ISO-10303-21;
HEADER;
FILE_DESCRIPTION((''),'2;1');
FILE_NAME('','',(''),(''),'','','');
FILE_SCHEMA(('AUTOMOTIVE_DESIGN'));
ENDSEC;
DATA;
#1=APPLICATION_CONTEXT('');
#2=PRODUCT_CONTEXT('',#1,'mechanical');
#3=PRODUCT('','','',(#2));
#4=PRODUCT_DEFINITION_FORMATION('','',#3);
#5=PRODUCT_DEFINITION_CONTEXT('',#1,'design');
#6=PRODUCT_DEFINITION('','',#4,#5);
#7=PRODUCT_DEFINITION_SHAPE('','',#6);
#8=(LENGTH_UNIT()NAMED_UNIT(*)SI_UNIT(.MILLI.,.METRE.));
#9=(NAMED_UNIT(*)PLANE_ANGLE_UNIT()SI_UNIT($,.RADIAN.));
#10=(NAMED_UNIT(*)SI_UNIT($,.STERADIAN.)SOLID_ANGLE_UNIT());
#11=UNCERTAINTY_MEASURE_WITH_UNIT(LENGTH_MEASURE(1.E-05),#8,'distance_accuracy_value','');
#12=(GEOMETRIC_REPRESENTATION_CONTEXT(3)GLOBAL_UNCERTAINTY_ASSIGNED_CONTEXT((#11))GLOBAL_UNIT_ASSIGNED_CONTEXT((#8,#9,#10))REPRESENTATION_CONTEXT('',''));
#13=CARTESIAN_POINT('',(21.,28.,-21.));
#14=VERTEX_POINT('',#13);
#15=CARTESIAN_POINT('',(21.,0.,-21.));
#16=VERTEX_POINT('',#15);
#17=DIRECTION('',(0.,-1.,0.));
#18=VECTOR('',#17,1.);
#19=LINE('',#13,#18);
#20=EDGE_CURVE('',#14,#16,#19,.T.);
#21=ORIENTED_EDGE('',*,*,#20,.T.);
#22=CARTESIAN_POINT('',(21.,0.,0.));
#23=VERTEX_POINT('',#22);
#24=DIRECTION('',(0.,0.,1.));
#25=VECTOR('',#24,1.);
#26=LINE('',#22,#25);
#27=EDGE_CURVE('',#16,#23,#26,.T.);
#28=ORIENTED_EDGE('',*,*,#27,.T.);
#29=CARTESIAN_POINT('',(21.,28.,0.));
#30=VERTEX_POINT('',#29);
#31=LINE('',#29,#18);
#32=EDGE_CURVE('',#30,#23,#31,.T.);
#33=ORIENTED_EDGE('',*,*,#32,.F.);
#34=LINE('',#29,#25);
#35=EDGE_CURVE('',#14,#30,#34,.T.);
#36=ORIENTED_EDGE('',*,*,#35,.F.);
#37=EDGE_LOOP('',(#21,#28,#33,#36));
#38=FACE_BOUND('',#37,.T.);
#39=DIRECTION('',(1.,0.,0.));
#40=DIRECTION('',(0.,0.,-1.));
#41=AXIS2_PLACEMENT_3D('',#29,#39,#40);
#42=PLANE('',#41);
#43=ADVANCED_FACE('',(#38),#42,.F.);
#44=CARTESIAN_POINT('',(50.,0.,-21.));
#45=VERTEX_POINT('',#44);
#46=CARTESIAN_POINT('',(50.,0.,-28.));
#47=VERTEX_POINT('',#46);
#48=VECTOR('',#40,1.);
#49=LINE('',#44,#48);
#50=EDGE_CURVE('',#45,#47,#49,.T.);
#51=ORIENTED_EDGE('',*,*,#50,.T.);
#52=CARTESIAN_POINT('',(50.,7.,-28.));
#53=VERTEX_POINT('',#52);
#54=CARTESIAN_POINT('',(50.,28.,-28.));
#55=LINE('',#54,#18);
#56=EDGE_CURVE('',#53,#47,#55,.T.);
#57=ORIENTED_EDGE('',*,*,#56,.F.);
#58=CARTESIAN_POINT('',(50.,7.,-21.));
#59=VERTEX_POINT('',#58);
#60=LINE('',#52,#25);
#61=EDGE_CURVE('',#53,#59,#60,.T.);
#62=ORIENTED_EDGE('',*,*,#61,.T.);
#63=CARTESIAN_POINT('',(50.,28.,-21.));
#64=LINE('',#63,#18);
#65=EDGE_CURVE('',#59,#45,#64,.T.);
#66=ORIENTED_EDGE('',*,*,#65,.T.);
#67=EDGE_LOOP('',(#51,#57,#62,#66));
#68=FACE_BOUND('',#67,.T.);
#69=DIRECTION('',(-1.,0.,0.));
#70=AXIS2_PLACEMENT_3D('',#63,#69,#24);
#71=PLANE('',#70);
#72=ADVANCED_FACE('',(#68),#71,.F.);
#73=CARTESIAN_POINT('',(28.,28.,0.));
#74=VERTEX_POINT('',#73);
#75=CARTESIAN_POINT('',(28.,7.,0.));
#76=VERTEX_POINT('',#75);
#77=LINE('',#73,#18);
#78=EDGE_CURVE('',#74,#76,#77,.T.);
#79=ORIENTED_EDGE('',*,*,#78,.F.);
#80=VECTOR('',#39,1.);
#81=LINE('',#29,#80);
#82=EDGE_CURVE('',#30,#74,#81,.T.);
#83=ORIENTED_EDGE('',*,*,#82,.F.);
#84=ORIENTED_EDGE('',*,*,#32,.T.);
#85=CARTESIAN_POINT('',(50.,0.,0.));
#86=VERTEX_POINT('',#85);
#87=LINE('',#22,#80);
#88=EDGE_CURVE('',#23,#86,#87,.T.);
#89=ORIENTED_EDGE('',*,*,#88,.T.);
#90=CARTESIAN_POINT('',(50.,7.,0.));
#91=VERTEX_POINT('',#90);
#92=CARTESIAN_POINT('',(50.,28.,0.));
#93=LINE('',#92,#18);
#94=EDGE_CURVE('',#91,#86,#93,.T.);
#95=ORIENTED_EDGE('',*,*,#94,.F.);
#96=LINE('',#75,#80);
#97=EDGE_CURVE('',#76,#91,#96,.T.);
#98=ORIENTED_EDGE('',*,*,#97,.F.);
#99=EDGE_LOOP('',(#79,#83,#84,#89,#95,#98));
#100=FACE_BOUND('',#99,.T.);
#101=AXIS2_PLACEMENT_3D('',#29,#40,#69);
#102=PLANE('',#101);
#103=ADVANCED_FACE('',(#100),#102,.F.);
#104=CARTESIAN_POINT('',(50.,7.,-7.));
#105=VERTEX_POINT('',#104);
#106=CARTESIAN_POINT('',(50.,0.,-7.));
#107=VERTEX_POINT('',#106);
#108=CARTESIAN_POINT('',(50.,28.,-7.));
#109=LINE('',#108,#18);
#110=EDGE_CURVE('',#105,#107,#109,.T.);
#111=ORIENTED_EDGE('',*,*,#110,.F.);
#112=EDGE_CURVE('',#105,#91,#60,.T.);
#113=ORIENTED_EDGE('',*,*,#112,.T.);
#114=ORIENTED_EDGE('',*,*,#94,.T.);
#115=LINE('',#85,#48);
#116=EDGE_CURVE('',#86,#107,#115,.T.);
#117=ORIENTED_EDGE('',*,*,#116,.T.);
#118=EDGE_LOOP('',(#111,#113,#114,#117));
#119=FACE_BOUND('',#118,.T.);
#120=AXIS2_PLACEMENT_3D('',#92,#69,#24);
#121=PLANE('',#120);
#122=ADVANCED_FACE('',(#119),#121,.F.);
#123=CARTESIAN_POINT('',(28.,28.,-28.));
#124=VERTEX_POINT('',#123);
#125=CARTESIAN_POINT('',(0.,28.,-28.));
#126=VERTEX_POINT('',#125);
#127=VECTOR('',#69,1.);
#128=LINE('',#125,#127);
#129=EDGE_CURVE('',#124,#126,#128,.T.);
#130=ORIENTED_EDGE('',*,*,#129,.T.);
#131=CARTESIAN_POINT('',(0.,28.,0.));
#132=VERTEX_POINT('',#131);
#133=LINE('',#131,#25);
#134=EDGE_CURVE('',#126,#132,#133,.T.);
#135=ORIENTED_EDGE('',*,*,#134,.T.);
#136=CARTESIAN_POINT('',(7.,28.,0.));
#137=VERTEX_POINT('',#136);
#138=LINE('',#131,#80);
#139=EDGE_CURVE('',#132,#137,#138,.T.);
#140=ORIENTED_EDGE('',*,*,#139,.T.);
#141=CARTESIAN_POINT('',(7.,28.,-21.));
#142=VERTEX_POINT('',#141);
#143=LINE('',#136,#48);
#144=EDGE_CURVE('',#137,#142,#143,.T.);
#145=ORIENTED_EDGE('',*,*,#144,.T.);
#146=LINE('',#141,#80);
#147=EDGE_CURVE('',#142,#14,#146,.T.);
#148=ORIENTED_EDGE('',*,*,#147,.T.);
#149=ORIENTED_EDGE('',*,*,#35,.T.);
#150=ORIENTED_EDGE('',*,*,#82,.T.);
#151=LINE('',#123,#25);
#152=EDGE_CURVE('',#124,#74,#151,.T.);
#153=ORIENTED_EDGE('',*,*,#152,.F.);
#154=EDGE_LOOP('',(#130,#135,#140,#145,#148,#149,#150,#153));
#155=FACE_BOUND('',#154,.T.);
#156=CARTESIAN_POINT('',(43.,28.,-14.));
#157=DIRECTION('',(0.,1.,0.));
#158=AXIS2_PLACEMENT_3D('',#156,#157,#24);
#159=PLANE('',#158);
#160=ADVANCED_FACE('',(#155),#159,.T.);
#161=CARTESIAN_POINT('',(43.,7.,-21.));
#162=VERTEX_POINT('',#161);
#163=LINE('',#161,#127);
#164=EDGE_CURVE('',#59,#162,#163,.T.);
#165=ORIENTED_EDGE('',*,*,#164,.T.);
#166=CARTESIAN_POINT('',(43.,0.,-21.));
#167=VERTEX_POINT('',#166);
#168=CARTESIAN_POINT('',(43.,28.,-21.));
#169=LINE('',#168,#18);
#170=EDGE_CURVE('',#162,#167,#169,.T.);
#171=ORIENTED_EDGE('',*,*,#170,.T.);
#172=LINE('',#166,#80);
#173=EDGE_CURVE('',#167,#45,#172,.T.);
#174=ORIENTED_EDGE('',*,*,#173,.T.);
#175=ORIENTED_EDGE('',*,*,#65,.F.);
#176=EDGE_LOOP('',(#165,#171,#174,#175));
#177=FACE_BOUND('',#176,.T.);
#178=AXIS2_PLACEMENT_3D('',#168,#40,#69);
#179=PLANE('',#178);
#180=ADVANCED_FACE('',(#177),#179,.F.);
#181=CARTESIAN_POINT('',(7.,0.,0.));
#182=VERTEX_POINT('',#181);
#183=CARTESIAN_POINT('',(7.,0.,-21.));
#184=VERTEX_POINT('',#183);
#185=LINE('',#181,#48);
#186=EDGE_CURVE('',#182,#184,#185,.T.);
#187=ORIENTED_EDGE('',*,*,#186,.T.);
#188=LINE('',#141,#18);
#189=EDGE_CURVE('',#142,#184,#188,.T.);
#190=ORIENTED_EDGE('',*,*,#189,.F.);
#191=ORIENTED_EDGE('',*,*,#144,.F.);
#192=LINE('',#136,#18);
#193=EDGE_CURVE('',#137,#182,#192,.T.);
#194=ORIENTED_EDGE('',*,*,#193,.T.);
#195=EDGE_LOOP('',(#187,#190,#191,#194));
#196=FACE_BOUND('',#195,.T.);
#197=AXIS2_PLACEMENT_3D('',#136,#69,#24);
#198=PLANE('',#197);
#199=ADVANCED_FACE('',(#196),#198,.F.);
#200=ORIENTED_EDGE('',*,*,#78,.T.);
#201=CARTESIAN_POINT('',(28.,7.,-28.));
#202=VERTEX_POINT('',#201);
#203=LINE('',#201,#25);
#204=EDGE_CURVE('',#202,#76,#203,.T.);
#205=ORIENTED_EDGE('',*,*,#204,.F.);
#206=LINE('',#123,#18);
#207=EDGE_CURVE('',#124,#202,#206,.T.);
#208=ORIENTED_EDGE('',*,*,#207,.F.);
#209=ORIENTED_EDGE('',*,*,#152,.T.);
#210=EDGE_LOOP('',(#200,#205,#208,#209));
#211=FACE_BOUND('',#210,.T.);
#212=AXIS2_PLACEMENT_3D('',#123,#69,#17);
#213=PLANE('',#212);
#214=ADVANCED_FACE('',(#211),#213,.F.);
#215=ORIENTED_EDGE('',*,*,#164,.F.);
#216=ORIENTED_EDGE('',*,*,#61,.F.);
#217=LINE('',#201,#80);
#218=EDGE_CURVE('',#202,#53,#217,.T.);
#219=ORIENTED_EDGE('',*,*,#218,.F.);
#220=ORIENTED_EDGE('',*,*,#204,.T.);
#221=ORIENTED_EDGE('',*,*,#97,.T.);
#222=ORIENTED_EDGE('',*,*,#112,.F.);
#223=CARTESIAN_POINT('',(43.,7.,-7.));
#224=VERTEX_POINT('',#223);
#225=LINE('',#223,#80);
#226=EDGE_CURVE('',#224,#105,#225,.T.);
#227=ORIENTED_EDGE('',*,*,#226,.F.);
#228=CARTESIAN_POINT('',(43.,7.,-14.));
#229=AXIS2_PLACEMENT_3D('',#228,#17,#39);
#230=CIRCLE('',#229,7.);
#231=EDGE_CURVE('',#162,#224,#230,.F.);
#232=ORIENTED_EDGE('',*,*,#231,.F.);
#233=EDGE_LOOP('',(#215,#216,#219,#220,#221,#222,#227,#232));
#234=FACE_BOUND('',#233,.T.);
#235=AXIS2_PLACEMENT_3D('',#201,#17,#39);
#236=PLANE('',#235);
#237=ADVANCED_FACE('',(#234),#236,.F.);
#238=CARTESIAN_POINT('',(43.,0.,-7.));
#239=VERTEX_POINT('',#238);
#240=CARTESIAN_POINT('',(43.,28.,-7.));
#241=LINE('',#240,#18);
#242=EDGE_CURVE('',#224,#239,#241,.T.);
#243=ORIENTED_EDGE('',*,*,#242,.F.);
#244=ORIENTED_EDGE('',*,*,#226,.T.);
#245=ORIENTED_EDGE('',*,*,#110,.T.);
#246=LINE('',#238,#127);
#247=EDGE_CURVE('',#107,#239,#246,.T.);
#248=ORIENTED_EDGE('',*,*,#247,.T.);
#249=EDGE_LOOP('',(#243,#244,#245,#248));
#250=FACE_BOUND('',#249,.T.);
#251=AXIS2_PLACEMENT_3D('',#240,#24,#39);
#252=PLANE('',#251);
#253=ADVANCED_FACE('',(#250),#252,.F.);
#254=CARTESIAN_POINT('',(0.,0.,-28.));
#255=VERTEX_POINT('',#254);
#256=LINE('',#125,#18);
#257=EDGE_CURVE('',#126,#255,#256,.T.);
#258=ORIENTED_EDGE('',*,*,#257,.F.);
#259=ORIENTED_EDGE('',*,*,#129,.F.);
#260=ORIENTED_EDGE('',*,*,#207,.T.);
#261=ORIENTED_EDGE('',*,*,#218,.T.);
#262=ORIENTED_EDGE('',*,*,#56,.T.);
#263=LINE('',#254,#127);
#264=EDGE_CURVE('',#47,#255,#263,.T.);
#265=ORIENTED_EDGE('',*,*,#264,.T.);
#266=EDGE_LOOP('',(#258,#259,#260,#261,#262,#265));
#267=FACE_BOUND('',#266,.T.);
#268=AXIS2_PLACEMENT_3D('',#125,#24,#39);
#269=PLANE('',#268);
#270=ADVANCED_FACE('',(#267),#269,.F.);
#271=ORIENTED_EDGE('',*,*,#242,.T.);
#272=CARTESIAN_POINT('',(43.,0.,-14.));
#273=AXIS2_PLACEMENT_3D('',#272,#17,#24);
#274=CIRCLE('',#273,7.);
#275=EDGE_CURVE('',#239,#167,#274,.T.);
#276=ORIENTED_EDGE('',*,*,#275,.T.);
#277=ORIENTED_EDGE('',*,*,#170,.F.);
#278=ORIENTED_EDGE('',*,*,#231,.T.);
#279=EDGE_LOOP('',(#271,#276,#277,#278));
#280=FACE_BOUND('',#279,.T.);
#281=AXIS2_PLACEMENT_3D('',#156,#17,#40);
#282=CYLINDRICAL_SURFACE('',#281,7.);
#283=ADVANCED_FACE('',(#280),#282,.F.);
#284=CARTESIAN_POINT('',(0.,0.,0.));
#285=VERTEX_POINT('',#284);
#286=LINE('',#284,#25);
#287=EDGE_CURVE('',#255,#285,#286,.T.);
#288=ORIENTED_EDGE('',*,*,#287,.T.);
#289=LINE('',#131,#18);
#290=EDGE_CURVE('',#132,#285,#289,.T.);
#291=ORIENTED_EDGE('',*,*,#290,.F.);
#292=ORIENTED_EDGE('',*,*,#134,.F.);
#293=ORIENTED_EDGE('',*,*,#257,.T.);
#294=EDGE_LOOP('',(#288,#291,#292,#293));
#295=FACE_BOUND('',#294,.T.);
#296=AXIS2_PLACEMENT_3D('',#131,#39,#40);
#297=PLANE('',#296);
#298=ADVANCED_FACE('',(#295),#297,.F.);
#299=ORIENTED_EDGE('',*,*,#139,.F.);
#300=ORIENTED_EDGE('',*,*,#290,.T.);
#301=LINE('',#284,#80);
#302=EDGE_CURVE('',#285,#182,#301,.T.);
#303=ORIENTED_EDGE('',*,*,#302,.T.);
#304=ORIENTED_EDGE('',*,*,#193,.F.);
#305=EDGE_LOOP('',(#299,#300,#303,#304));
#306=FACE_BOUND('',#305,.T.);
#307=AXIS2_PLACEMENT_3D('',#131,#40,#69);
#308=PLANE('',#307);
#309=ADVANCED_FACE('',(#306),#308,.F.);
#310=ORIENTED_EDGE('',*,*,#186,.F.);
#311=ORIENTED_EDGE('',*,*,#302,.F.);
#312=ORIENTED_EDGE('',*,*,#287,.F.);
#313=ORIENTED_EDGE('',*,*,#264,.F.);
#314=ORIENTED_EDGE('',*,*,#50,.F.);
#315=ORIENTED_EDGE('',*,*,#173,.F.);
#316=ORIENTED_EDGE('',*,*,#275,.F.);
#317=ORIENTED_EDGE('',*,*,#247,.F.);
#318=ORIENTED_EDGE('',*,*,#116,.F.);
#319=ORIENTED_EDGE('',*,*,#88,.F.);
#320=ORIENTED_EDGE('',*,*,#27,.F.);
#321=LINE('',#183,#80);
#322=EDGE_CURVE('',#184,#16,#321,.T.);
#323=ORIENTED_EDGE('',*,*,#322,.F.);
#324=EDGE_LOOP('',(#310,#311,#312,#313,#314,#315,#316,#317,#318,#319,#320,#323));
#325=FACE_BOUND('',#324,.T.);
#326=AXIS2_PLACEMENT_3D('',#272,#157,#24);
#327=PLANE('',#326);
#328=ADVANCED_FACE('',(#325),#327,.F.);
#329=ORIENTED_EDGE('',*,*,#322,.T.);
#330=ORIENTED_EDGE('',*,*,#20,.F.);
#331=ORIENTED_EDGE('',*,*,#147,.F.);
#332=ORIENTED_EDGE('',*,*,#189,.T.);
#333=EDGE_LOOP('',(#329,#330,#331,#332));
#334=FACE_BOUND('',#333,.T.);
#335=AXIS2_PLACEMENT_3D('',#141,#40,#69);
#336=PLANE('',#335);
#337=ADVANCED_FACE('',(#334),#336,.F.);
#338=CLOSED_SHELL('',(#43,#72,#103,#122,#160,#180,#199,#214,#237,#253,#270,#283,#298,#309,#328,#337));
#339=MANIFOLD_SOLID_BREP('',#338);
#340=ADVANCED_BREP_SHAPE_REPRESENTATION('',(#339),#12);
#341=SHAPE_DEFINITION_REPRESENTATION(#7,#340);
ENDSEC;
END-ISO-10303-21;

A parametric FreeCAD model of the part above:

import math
import FreeCAD as App
import Part
import Sketcher
from FreeCAD import Vector


def add_polygon(sketch, points):
    """Adds a closed chain of lines whose ends are joined by coincident constraints."""
    first, n = sketch.GeometryCount, len(points)
    for a, b in zip(points, points[1:] + points[:1]):
        sketch.addGeometry(Part.LineSegment(App.Vector(*a, 0), App.Vector(*b, 0)), False)
    for i in range(n):
        sketch.addConstraint(Sketcher.Constraint("Coincident", first + i, 2, first + (i + 1) % n, 1))

doc = App.newDocument("Part")
body = doc.addObject("PartDesign::Body", "Body")

sketch1 = doc.addObject("Sketcher::SketchObject", "Sketch")
body.addObject(sketch1)
sketch1.AttachmentSupport = (doc.XZ_Plane, [""])
sketch1.MapMode = "FlatFace"
sketch1.addGeometry(Part.LineSegment(Vector(7, 0, 0), Vector(7, -21, 0)), False)
sketch1.addGeometry(Part.LineSegment(Vector(7, -21, 0), Vector(21, -21, 0)), False)
sketch1.addGeometry(Part.LineSegment(Vector(21, -21, 0), Vector(21, 0, 0)), False)
sketch1.addGeometry(Part.LineSegment(Vector(21, 0, 0), Vector(50, 0, 0)), False)
sketch1.addGeometry(Part.LineSegment(Vector(50, 0, 0), Vector(50, -7, 0)), False)
sketch1.addGeometry(Part.LineSegment(Vector(50, -7, 0), Vector(43, -7, 0)), False)
sketch1.addGeometry(Part.ArcOfCircle(Part.Circle(Vector(43, -14, 0), Vector(0, 0, 1), 7), math.radians(90), math.radians(270)), False)
sketch1.addGeometry(Part.LineSegment(Vector(43, -21, 0), Vector(50, -21, 0)), False)
sketch1.addGeometry(Part.LineSegment(Vector(50, -21, 0), Vector(50, -28, 0)), False)
sketch1.addGeometry(Part.LineSegment(Vector(50, -28, 0), Vector(0, -28, 0)), False)
sketch1.addGeometry(Part.LineSegment(Vector(0, -28, 0), Vector(0, 0, 0)), False)
sketch1.addGeometry(Part.LineSegment(Vector(0, 0, 0), Vector(7, 0, 0)), False)
sketch1.addConstraint(Sketcher.Constraint("Coincident", 0, 2, 1, 1))
sketch1.addConstraint(Sketcher.Constraint("Coincident", 1, 2, 2, 1))
sketch1.addConstraint(Sketcher.Constraint("Coincident", 2, 2, 3, 1))
sketch1.addConstraint(Sketcher.Constraint("Coincident", 3, 2, 4, 1))
sketch1.addConstraint(Sketcher.Constraint("Coincident", 4, 2, 5, 1))
sketch1.addConstraint(Sketcher.Constraint("Tangent", 5, 2, 6, 1))
sketch1.addConstraint(Sketcher.Constraint("Tangent", 6, 2, 7, 1))
sketch1.addConstraint(Sketcher.Constraint("Coincident", 7, 2, 8, 1))
sketch1.addConstraint(Sketcher.Constraint("Coincident", 8, 2, 9, 1))
sketch1.addConstraint(Sketcher.Constraint("Coincident", 9, 2, 10, 1))
sketch1.addConstraint(Sketcher.Constraint("Coincident", 10, 2, 11, 1))
sketch1.addConstraint(Sketcher.Constraint("Coincident", 11, 2, 0, 1))
sketch1.addConstraint(Sketcher.Constraint("Vertical", 0))
sketch1.addConstraint(Sketcher.Constraint("Horizontal", 1))
sketch1.addConstraint(Sketcher.Constraint("Vertical", 2))
sketch1.addConstraint(Sketcher.Constraint("Horizontal", 3))
sketch1.addConstraint(Sketcher.Constraint("Vertical", 4))
sketch1.addConstraint(Sketcher.Constraint("Horizontal", 5))
sketch1.addConstraint(Sketcher.Constraint("Horizontal", 7))
sketch1.addConstraint(Sketcher.Constraint("Vertical", 8))
sketch1.addConstraint(Sketcher.Constraint("Horizontal", 9))
sketch1.addConstraint(Sketcher.Constraint("Vertical", 10))
sketch1.addConstraint(Sketcher.Constraint("Horizontal", 11))
sketch1.addConstraint(Sketcher.Constraint("Coincident", 10, 2, -1, 1))
sketch1.addConstraint(Sketcher.Constraint("PointOnObject", 2, 2, -1))
sketch1.addConstraint(Sketcher.Constraint("Horizontal", 1, 2, 6, 2))
sketch1.addConstraint(Sketcher.Constraint("Vertical", 4, 2, 7, 2))
sketch1.addConstraint(Sketcher.Constraint("Equal", 7, 11))
sketch1.addConstraint(Sketcher.Constraint("Equal", 11, 4))
sketch1.addConstraint(Sketcher.Constraint("Equal", 4, 8))
sketch1.addConstraint(Sketcher.Constraint("Radius", 6, 7.0))
sketch1.addConstraint(Sketcher.Constraint("DistanceX", 1, 1, 1, 2, 14.0))
sketch1.addConstraint(Sketcher.Constraint("DistanceX", 3, 1, 3, 2, 29.0))
sketch1.addConstraint(Sketcher.Constraint("DistanceX", 5, 2, 5, 1, 7.0))
pad1 = doc.addObject("PartDesign::Pad", "Pad")
body.addObject(pad1)
pad1.Profile = sketch1
pad1.Length = 28
pad1.Reversed = True

sketch2 = doc.addObject("Sketcher::SketchObject", "Sketch001")
body.addObject(sketch2)
sketch2.AttachmentSupport = (doc.XY_Plane, [""])
sketch2.MapMode = "FlatFace"
add_polygon(sketch2, [(28, 28), (28, 7), (50, 7), (50, 28)])
sketch2.addConstraint(Sketcher.Constraint("Vertical", 0))
sketch2.addConstraint(Sketcher.Constraint("Horizontal", 1))
sketch2.addConstraint(Sketcher.Constraint("Vertical", 2))
sketch2.addConstraint(Sketcher.Constraint("Horizontal", 3))
sketch2.addConstraint(Sketcher.Constraint("DistanceX", 1, 1, 1, 2, 22.0))
sketch2.addConstraint(Sketcher.Constraint("DistanceY", 0, 2, 0, 1, 21.0))
sketch2.addConstraint(Sketcher.Constraint("DistanceX", -1, 1, 0, 2, 28.0))
sketch2.addConstraint(Sketcher.Constraint("DistanceY", -1, 1, 0, 2, 7.0))
pocket1 = doc.addObject("PartDesign::Pocket", "Pocket")
body.addObject(pocket1)
pocket1.Profile = sketch2
pocket1.Type = "ThroughAll"

doc.recompute()
